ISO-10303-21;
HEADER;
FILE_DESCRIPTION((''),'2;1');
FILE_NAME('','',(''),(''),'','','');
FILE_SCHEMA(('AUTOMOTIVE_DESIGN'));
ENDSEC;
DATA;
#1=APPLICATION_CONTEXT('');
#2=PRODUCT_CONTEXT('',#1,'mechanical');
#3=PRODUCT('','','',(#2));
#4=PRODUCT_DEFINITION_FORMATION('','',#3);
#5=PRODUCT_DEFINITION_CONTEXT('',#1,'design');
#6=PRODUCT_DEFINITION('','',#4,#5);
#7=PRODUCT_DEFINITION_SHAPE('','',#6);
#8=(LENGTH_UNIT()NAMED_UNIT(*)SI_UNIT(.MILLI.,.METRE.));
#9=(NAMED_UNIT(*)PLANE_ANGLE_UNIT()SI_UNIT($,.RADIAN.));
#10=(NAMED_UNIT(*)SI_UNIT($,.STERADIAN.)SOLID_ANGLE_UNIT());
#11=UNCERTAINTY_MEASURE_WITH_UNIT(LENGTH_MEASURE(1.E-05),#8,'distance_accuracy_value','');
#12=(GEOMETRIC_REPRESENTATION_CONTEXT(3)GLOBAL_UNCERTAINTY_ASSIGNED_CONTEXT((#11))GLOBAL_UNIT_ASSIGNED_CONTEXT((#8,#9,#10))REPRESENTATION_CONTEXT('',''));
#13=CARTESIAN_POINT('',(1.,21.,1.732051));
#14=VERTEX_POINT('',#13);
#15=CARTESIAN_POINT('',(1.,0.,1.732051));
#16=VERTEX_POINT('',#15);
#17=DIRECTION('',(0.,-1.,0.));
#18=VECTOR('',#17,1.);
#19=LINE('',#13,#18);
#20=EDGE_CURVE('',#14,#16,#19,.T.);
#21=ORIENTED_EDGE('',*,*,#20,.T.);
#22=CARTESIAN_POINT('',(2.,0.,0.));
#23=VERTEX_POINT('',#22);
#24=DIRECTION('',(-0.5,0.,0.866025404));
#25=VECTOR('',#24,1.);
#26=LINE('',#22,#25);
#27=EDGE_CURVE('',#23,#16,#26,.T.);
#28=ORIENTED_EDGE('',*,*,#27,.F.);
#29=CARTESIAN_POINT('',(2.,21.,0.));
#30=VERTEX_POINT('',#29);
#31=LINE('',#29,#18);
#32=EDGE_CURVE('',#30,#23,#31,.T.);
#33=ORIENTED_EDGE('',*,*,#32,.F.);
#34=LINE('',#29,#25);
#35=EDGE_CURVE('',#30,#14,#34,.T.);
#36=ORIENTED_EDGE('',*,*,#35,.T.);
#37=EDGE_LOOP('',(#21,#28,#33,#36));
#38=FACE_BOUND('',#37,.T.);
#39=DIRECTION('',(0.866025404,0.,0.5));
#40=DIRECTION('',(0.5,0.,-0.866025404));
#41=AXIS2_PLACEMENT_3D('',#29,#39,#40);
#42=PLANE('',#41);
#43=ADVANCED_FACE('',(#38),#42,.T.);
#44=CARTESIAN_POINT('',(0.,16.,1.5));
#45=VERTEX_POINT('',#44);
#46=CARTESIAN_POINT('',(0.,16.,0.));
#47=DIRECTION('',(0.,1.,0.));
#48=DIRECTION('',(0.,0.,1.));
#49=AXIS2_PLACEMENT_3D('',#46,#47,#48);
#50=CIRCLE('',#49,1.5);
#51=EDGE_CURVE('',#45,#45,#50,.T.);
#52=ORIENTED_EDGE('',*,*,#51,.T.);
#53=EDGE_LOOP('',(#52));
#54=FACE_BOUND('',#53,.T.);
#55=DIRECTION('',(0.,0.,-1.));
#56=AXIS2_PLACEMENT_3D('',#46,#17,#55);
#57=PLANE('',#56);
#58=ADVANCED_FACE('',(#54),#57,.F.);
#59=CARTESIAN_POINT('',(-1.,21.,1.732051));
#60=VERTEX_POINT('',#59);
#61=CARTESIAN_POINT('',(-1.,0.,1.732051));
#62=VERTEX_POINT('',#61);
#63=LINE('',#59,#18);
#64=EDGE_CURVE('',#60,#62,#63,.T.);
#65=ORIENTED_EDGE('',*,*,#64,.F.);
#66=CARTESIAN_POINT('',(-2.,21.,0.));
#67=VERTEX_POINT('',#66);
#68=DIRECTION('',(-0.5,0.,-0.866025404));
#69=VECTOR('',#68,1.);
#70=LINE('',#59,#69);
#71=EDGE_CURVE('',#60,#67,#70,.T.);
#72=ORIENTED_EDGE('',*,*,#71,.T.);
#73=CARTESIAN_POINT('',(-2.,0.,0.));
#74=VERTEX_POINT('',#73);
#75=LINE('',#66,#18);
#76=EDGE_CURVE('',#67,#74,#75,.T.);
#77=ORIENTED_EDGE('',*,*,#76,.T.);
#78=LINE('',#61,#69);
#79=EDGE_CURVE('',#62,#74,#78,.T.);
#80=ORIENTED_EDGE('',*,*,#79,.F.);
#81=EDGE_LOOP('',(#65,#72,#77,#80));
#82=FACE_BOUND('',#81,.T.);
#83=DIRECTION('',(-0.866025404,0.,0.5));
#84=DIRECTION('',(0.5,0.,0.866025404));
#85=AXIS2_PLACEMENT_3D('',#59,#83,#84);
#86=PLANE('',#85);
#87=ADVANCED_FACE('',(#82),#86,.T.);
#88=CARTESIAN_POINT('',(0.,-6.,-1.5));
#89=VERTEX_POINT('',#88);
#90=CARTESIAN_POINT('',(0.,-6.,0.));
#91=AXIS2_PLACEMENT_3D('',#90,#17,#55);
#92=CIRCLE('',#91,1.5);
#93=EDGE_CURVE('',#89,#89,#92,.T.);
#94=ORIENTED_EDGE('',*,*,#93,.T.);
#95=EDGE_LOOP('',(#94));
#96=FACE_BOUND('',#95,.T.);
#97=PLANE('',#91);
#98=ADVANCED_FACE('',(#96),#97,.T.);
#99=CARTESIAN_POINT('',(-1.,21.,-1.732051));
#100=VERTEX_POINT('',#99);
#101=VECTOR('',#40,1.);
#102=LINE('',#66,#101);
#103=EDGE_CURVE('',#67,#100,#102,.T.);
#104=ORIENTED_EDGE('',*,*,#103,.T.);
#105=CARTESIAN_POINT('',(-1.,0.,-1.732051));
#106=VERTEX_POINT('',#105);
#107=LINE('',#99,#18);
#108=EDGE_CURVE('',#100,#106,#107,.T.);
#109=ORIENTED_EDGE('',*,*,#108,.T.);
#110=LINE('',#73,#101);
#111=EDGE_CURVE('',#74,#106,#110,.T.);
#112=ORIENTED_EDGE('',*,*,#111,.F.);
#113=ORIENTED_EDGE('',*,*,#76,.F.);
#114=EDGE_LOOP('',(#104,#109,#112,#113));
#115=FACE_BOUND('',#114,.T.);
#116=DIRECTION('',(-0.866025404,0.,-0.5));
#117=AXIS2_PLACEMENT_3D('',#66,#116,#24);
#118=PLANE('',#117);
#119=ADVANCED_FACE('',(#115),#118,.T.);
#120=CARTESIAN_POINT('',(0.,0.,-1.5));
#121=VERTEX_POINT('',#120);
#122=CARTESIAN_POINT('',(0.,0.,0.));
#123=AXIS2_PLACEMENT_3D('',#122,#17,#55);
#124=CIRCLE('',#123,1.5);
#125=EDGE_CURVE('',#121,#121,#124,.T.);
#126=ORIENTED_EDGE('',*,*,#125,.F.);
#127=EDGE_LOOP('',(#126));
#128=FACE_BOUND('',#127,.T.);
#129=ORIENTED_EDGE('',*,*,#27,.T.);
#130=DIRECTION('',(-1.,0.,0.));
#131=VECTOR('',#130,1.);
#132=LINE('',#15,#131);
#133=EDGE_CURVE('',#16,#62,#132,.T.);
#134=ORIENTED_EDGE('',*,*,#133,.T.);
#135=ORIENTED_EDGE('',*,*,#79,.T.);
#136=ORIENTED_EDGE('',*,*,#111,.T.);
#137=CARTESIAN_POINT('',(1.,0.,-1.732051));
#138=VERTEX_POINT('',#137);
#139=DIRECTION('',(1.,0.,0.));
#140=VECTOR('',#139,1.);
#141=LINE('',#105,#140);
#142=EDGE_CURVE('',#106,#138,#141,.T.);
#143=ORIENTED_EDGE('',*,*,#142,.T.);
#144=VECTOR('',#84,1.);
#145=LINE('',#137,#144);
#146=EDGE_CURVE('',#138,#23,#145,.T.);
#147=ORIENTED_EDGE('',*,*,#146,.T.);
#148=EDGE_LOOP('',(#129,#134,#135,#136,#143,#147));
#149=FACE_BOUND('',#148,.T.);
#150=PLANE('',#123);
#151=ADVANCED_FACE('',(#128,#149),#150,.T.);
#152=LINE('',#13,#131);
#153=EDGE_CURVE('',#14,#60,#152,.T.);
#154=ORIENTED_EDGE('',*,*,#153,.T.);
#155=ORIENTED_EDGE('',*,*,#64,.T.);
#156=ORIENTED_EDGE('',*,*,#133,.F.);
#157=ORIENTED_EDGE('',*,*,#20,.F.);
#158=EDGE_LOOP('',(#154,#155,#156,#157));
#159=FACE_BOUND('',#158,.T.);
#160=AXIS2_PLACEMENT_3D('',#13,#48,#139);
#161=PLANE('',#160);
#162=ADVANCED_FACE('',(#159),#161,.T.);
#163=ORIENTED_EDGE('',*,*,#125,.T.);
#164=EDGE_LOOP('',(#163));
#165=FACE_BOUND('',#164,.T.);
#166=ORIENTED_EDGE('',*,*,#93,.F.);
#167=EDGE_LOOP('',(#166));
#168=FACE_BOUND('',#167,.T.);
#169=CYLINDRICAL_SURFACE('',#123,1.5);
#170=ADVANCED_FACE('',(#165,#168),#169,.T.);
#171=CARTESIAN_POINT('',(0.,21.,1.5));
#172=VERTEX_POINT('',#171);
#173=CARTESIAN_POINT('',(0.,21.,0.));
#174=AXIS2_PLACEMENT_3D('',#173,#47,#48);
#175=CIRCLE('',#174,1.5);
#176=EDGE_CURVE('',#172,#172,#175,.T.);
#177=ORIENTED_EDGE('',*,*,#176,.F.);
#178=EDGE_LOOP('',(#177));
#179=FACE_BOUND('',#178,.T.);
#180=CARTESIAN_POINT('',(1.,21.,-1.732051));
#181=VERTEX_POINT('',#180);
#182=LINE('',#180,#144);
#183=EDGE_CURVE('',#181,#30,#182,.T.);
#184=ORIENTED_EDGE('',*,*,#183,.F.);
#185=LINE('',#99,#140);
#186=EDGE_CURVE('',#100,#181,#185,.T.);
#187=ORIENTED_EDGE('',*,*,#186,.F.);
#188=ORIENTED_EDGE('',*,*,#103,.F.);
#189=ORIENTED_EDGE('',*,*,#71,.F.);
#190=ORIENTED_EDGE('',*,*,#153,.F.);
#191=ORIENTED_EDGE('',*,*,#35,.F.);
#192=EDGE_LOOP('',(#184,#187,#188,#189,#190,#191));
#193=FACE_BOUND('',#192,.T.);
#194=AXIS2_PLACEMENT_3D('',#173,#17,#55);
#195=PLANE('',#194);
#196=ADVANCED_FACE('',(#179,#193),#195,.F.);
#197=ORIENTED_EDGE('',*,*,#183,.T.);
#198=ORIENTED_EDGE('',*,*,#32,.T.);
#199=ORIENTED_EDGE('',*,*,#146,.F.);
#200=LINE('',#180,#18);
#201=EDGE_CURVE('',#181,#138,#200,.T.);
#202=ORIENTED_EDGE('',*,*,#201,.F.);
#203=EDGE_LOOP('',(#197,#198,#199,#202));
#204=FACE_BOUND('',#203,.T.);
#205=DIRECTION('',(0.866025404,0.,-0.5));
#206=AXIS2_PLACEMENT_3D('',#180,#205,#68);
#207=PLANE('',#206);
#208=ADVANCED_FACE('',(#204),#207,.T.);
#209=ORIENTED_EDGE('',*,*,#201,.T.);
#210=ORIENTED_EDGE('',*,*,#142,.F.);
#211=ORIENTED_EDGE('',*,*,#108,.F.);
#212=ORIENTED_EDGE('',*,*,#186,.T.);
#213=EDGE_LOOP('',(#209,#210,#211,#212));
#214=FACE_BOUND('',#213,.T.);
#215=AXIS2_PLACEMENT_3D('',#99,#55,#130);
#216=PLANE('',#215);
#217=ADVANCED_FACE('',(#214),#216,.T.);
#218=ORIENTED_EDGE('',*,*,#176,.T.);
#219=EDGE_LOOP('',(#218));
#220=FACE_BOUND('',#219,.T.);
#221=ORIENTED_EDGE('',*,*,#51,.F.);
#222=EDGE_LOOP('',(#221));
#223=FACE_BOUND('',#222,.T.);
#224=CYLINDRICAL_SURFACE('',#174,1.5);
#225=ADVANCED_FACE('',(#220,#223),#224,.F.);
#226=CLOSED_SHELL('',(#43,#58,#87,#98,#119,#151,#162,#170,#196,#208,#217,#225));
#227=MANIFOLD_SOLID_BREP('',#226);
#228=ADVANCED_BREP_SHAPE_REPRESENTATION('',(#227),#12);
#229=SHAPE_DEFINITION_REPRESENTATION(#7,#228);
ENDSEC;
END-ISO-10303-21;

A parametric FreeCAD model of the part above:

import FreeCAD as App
import Part
import Sketcher

V = App.Vector
Q = App.Units.Quantity


def add_polygon(sketch, points):
    """Adds a closed chain of lines whose ends are joined by coincident constraints."""
    first, n = sketch.GeometryCount, len(points)
    for a, b in zip(points, points[1:] + points[:1]):
        sketch.addGeometry(Part.LineSegment(App.Vector(*a, 0), App.Vector(*b, 0)), False)
    for i in range(n):
        sketch.addConstraint(Sketcher.Constraint("Coincident", first + i, 2, first + (i + 1) % n, 1))

doc = App.newDocument("Part")
body = doc.addObject("PartDesign::Body", "Body")

sketch1 = body.newObject("Sketcher::SketchObject", "Sketch")
sketch1.AttachmentSupport = (doc.getObject("XZ_Plane"), [""])
sketch1.MapMode = "FlatFace"
add_polygon(sketch1, [(-1, 1.7), (-2, 0), (-1, -1.7), (1, -1.7), (2, 0), (1, 1.7)])
sketch1.addConstraint([
    Sketcher.Constraint("Horizontal", 2),
    Sketcher.Constraint("Horizontal", 5),
    Sketcher.Constraint("Symmetric", 0, 2, 3, 2, -1, 1),
    Sketcher.Constraint("Symmetric", 1, 2, 4, 2, -1, 1),
    Sketcher.Constraint("PointOnObject", 0, 2, -1),
    Sketcher.Constraint("Parallel", 0, 3),
    Sketcher.Constraint("Vertical", 2, 2, 4, 2),
    Sketcher.Constraint("DistanceX", 2, 1, 2, 2, 2.0),
    Sketcher.Constraint("Angle", 0, Q("-120 deg")),
    Sketcher.Constraint("Distance", 0, 2.0),
])
pad1 = body.newObject("PartDesign::Pad", "Pad")
pad1.Profile = sketch1
pad1.Length = 21
pad1.Reversed = True

sketch2 = body.newObject("Sketcher::SketchObject", "Sketch001")
sketch2.AttachmentSupport = (doc.getObject("XY_Plane"), [""])
sketch2.MapMode = "FlatFace"
add_polygon(sketch2, [(0, 0), (0, -6), (1.5, -6), (1.5, 0)])
sketch2.addConstraint([
    Sketcher.Constraint("Vertical", 0),
    Sketcher.Constraint("Horizontal", 1),
    Sketcher.Constraint("Vertical", 2),
    Sketcher.Constraint("Horizontal", 3),
    Sketcher.Constraint("Coincident", 3, 2, -1, 1),
    Sketcher.Constraint("DistanceY", 0, 2, 0, 1, 6.0),
    Sketcher.Constraint("DistanceX", 1, 1, 1, 2, 1.5),
])
revolution = body.newObject("PartDesign::Revolution", "Revolution")
revolution.Profile = sketch2
revolution.ReferenceAxis = (sketch2, ["V_Axis"])
revolution.Angle = 360

sketch3 = body.newObject("Sketcher::SketchObject", "Sketch002")
sketch3.AttachmentSupport = (doc.getObject("XZ_Plane"), [""])
sketch3.MapMode = "FlatFace"
sketch3.AttachmentOffset = App.Placement(V(0, 0, -21), App.Rotation())
sketch3.addGeometry(Part.Circle(V(0, 0, 0), V(0, 0, 1), 1.5), False)
sketch3.addConstraint([
    Sketcher.Constraint("Coincident", 0, 3, -1, 1),
    Sketcher.Constraint("Diameter", 0, 3.0),
])
doc.recompute()
hole = body.newObject("PartDesign::Hole", "Hole")
hole.Profile = sketch3
hole.ThreadType = "None"
hole.Diameter = 3
hole.DepthType = "Dimension"
hole.Depth = 5
hole.DrillPoint = "Flat"
hole.Reversed = True

doc.recompute()
